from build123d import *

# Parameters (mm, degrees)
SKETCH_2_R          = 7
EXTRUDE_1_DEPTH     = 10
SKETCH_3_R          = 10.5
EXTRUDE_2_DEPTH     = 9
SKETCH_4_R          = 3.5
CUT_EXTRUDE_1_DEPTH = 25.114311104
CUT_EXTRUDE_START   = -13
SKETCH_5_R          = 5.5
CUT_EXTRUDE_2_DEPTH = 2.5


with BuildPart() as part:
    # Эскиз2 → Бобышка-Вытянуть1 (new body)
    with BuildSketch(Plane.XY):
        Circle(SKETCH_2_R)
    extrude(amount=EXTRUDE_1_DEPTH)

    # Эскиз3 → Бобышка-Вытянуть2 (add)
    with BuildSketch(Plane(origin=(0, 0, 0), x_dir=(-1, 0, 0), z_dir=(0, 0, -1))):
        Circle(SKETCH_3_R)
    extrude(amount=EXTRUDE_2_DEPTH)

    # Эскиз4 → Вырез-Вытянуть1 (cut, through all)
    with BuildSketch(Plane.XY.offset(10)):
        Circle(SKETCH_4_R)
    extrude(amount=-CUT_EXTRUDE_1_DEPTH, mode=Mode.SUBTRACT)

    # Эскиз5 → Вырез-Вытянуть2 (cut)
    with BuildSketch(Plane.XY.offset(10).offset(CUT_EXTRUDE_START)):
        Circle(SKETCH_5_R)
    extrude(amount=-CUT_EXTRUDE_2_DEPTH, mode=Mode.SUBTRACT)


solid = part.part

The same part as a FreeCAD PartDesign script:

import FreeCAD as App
import Part
import Sketcher

V = App.Vector

doc = App.newDocument("Part")
params = doc.addObject("Spreadsheet::Sheet", "Params")
for row, (alias, value) in enumerate([
    ("sketch1_diameter", "14 mm"),
    ("pad1_length", "10 mm"),
    ("sketch2_diameter", "21 mm"),
    ("pad2_length", "9 mm"),
    ("sketch3_diameter", "7 mm"),
    ("sketch4_diameter", "11 mm"),
    ("pocket2_length", "2.5 mm"),
], start=1):
    params.set(f"A{row}", alias)
    params.set(f"B{row}", "=" + value)
    params.setAlias(f"B{row}", alias)

body = doc.addObject("PartDesign::Body", "Body")

# Sketch on XY plane
sketch1 = body.newObject("Sketcher::SketchObject", "Sketch")
sketch1.AttachmentSupport = (doc.getObject("XY_Plane"), [""])
sketch1.MapMode = "FlatFace"
sketch1.addGeometry(Part.Circle(V(0, 0, 0), V(0, 0, 1), 7), False)
sketch1.addConstraint(Sketcher.Constraint("Coincident", 0, 3, -1, 1))
sketch1.addConstraint(Sketcher.Constraint("Diameter", 0, 14.0))
sketch1.setExpression("Constraints[1]", "Params.sketch1_diameter")
pad1 = body.newObject("PartDesign::Pad", "Pad")
pad1.Profile = sketch1
pad1.setExpression("Length", "Params.pad1_length")

# Sketch on XY plane
sketch2 = body.newObject("Sketcher::SketchObject", "Sketch001")
sketch2.AttachmentSupport = (doc.getObject("XY_Plane"), [""])
sketch2.MapMode = "FlatFace"
sketch2.addGeometry(Part.Circle(V(0, 0, 0), V(0, 0, 1), 10), False)
sketch2.addConstraint(Sketcher.Constraint("Coincident", 0, 3, -1, 1))
sketch2.addConstraint(Sketcher.Constraint("Diameter", 0, 21.0))
sketch2.setExpression("Constraints[1]", "Params.sketch2_diameter")
pad2 = body.newObject("PartDesign::Pad", "Pad001")
pad2.Profile = sketch2
pad2.setExpression("Length", "Params.pad2_length")
pad2.Reversed = True

# Sketch on XY plane
sketch3 = body.newObject("Sketcher::SketchObject", "Sketch002")
sketch3.AttachmentSupport = (doc.getObject("XY_Plane"), [""])
sketch3.MapMode = "FlatFace"
sketch3.AttachmentOffset = App.Placement(V(0, 0, 10), App.Rotation())
sketch3.addGeometry(Part.Circle(V(0, 0, 0), V(0, 0, 1), 3.5), False)
sketch3.addConstraint(Sketcher.Constraint("Coincident", 0, 3, -1, 1))
sketch3.addConstraint(Sketcher.Constraint("Diameter", 0, 7.0))
sketch3.setExpression("Constraints[1]", "Params.sketch3_diameter")
pocket1 = body.newObject("PartDesign::Pocket", "Pocket")
pocket1.Profile = sketch3
pocket1.Type = "ThroughAll"

# Sketch on XY plane
sketch4 = body.newObject("Sketcher::SketchObject", "Sketch003")
sketch4.AttachmentSupport = (doc.getObject("XY_Plane"), [""])
sketch4.MapMode = "FlatFace"
sketch4.AttachmentOffset = App.Placement(V(0, 0, -3), App.Rotation())
sketch4.addGeometry(Part.Circle(V(0, 0, 0), V(0, 0, 1), 6), False)
sketch4.addConstraint(Sketcher.Constraint("Coincident", 0, 3, -1, 1))
sketch4.addConstraint(Sketcher.Constraint("Diameter", 0, 11.0))
sketch4.setExpression("Constraints[1]", "Params.sketch4_diameter")
pocket2 = body.newObject("PartDesign::Pocket", "Pocket001")
pocket2.Profile = sketch4
pocket2.setExpression("Length", "Params.pocket2_length")

doc.recompute()
